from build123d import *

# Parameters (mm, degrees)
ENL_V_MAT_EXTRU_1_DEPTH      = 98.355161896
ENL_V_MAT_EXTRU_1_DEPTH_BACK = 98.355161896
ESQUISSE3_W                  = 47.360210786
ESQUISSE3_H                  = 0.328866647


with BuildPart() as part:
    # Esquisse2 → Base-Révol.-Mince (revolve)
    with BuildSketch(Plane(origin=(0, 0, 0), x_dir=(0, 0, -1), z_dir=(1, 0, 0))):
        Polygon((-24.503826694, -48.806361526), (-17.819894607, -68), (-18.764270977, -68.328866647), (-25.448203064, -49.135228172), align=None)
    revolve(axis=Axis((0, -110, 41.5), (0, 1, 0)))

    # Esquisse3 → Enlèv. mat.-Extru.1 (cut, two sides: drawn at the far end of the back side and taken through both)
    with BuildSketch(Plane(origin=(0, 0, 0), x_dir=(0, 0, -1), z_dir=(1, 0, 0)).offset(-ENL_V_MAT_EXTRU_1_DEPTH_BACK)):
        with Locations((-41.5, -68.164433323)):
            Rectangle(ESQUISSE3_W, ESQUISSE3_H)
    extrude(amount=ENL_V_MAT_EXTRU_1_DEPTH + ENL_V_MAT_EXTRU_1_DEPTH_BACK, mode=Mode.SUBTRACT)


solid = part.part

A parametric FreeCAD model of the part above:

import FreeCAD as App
import Part
import Sketcher
Q = App.Units.Quantity


def add_polygon(sketch, points):
    """Adds a closed chain of lines whose ends are joined by coincident constraints."""
    first, n = sketch.GeometryCount, len(points)
    for a, b in zip(points, points[1:] + points[:1]):
        sketch.addGeometry(Part.LineSegment(App.Vector(*a, 0), App.Vector(*b, 0)), False)
    for i in range(n):
        sketch.addConstraint(Sketcher.Constraint("Coincident", first + i, 2, first + (i + 1) % n, 1))

doc = App.newDocument("Part")
body = doc.addObject("PartDesign::Body", "Body")

# Sketch on YZ plane
sketch1 = body.newObject("Sketcher::SketchObject", "Sketch")
sketch1.AttachmentSupport = (doc.getObject("YZ_Plane"), [""])
sketch1.MapMode = "FlatFace"
add_polygon(sketch1, [(-68, 17.819895), (-48.806362, 24.503827), (-49.135228, 25.448203), (-68.328867, 18.764271)])  # lines 0-3
sketch1.addGeometry(Part.LineSegment(App.Vector(-68.328867, 41.5, 0), App.Vector(-48.806362, 41.5, 0)), True)  # axis
sketch1.addConstraint([
    Sketcher.Constraint("Horizontal", 4),
    Sketcher.Constraint("Perpendicular", 0, 1),
    Sketcher.Constraint("Perpendicular", 1, 2),
    Sketcher.Constraint("Perpendicular", 2, 3),
    Sketcher.Constraint("Vertical", 2, 2, 4, 1),
    Sketcher.Constraint("Vertical", 0, 2, 4, 2),
    Sketcher.Constraint("Distance", 1, Q("1 mm")),
    Sketcher.Constraint("DistanceX", 3, 2, -1, 1, Q("68 mm")),
    Sketcher.Constraint("Angle", 0, Q("19.2 deg")),
    Sketcher.Constraint("DistanceY", -1, 1, 4, 1, Q("41.5 mm")),
    Sketcher.Constraint("Distance", 0, Q("20.324141 mm")),
    Sketcher.Constraint("DistanceY", -1, 1, 2, 2, Q("18.764271 mm")),
])
revolution = body.newObject("PartDesign::Revolution", "Revolution")
revolution.Profile = sketch1
revolution.ReferenceAxis = (sketch1, ["Axis0"])
revolution.Angle = 360

# Sketch on YZ plane
sketch2 = body.newObject("Sketcher::SketchObject", "Sketch001")
sketch2.AttachmentSupport = (doc.getObject("YZ_Plane"), [""])
sketch2.MapMode = "FlatFace"
add_polygon(sketch2, [(-68, 65.180105), (-68.328867, 65.180105), (-68.328867, 17.819895), (-68, 17.819895)])  # lines 0-3
sketch2.addConstraint([
    Sketcher.Constraint("Horizontal", 0),
    Sketcher.Constraint("Vertical", 1),
    Sketcher.Constraint("Horizontal", 2),
    Sketcher.Constraint("Vertical", 3),
    Sketcher.Constraint("DistanceX", 2, 2, -1, 1, Q("68 mm")),
    Sketcher.Constraint("DistanceY", 1, 2, 1, 1, Q("47.360211 mm")),
    Sketcher.Constraint("DistanceX", 0, 2, 0, 1, Q("0.328867 mm")),
    Sketcher.Constraint("DistanceY", -1, 1, 0, 2, Q("65.180105 mm")),
])
pocket1 = body.newObject("PartDesign::Pocket", "Pocket")
pocket1.Profile = sketch2
pocket1.Type = "ThroughAll"
pocket1.Midplane = True

doc.recompute()
